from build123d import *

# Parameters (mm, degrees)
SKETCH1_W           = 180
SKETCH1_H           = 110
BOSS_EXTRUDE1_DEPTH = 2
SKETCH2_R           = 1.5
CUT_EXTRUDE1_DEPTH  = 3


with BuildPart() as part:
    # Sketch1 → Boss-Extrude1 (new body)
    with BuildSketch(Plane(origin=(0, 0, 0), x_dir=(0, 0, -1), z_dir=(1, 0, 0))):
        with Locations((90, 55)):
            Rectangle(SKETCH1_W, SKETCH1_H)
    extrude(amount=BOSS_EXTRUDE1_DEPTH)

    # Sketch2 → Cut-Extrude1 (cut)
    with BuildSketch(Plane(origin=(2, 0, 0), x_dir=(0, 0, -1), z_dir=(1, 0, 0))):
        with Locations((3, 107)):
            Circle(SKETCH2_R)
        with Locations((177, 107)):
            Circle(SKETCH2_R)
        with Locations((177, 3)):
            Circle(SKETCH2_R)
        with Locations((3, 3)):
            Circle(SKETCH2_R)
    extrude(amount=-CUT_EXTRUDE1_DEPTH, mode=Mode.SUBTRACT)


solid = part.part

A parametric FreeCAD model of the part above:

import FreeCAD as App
import Part
import Sketcher


def add_polygon(sketch, points):
    """Adds a closed chain of lines whose ends are joined by coincident constraints."""
    first, n = sketch.GeometryCount, len(points)
    for a, b in zip(points, points[1:] + points[:1]):
        sketch.addGeometry(Part.LineSegment(App.Vector(*a, 0), App.Vector(*b, 0)), False)
    for i in range(n):
        sketch.addConstraint(Sketcher.Constraint("Coincident", first + i, 2, first + (i + 1) % n, 1))

doc = App.newDocument("Part")
params = doc.addObject("Spreadsheet::Sheet", "Params")
for row, (alias, value) in enumerate([
    ("sketch1_width", "110 mm"),
    ("sketch1_height", "180 mm"),
    ("pad1_length", "2 mm"),
    ("sketch2_diameter", "3 mm"),
    ("pocket1_length", "3 mm"),
], start=1):
    params.set(f"A{row}", alias)
    params.set(f"B{row}", "=" + value)
    params.setAlias(f"B{row}", alias)

body = doc.addObject("PartDesign::Body", "Body")

sketch1 = body.newObject("Sketcher::SketchObject", "Sketch")
sketch1.AttachmentSupport = (doc.getObject("YZ_Plane"), [""])
sketch1.MapMode = "FlatFace"
add_polygon(sketch1, [(110, 0), (0, 0), (0, -180), (110, -180)])
sketch1.addConstraint([
    Sketcher.Constraint("Horizontal", 0),
    Sketcher.Constraint("Vertical", 1),
    Sketcher.Constraint("Horizontal", 2),
    Sketcher.Constraint("Vertical", 3),
    Sketcher.Constraint("Coincident", 0, 2, -1, 1),
    Sketcher.Constraint("DistanceX", 0, 2, 0, 1, 110.0),
    Sketcher.Constraint("DistanceY", 1, 2, 1, 1, 180.0),
])
sketch1.setExpression("Constraints[9]", "Params.sketch1_width")
sketch1.setExpression("Constraints[10]", "Params.sketch1_height")
pad1 = body.newObject("PartDesign::Pad", "Pad")
pad1.Profile = sketch1
pad1.setExpression("Length", "Params.pad1_length")

sketch2 = body.newObject("Sketcher::SketchObject", "Sketch001")
sketch2.AttachmentSupport = (doc.getObject("YZ_Plane"), [""])
sketch2.MapMode = "FlatFace"
sketch2.AttachmentOffset = App.Placement(App.Vector(0, 0, 2), App.Rotation())
sketch2.addGeometry([
    Part.Circle(App.Vector(107, -3, 0), App.Vector(0, 0, 1), 1.5),
    Part.Circle(App.Vector(107, -177, 0), App.Vector(0, 0, 1), 1.5),
    Part.Circle(App.Vector(3, -177, 0), App.Vector(0, 0, 1), 1.5),
    Part.Circle(App.Vector(3, -3, 0), App.Vector(0, 0, 1), 1.5),
], False)
sketch2.addConstraint([
    Sketcher.Constraint("Equal", 0, 1),
    Sketcher.Constraint("Equal", 1, 2),
    Sketcher.Constraint("Equal", 2, 3),
    Sketcher.Constraint("Horizontal", 1, 3, 2, 3),
    Sketcher.Constraint("Horizontal", 0, 3, 3, 3),
    Sketcher.Constraint("Vertical", 0, 3, 1, 3),
    Sketcher.Constraint("Vertical", 2, 3, 3, 3),
    Sketcher.Constraint("Diameter", 0, 3.0),
    Sketcher.Constraint("DistanceX", -1, 1, 0, 3, 107.0),
    Sketcher.Constraint("DistanceY", 0, 3, -1, 1, 3.0),
    Sketcher.Constraint("DistanceY", 1, 3, -1, 1, 177.0),
    Sketcher.Constraint("DistanceX", -1, 1, 2, 3, 3.0),
])
sketch2.setExpression("Constraints[7]", "Params.sketch2_diameter")
pocket1 = body.newObject("PartDesign::Pocket", "Pocket")
pocket1.Profile = sketch2
pocket1.setExpression("Length", "Params.pocket1_length")

doc.recompute()
